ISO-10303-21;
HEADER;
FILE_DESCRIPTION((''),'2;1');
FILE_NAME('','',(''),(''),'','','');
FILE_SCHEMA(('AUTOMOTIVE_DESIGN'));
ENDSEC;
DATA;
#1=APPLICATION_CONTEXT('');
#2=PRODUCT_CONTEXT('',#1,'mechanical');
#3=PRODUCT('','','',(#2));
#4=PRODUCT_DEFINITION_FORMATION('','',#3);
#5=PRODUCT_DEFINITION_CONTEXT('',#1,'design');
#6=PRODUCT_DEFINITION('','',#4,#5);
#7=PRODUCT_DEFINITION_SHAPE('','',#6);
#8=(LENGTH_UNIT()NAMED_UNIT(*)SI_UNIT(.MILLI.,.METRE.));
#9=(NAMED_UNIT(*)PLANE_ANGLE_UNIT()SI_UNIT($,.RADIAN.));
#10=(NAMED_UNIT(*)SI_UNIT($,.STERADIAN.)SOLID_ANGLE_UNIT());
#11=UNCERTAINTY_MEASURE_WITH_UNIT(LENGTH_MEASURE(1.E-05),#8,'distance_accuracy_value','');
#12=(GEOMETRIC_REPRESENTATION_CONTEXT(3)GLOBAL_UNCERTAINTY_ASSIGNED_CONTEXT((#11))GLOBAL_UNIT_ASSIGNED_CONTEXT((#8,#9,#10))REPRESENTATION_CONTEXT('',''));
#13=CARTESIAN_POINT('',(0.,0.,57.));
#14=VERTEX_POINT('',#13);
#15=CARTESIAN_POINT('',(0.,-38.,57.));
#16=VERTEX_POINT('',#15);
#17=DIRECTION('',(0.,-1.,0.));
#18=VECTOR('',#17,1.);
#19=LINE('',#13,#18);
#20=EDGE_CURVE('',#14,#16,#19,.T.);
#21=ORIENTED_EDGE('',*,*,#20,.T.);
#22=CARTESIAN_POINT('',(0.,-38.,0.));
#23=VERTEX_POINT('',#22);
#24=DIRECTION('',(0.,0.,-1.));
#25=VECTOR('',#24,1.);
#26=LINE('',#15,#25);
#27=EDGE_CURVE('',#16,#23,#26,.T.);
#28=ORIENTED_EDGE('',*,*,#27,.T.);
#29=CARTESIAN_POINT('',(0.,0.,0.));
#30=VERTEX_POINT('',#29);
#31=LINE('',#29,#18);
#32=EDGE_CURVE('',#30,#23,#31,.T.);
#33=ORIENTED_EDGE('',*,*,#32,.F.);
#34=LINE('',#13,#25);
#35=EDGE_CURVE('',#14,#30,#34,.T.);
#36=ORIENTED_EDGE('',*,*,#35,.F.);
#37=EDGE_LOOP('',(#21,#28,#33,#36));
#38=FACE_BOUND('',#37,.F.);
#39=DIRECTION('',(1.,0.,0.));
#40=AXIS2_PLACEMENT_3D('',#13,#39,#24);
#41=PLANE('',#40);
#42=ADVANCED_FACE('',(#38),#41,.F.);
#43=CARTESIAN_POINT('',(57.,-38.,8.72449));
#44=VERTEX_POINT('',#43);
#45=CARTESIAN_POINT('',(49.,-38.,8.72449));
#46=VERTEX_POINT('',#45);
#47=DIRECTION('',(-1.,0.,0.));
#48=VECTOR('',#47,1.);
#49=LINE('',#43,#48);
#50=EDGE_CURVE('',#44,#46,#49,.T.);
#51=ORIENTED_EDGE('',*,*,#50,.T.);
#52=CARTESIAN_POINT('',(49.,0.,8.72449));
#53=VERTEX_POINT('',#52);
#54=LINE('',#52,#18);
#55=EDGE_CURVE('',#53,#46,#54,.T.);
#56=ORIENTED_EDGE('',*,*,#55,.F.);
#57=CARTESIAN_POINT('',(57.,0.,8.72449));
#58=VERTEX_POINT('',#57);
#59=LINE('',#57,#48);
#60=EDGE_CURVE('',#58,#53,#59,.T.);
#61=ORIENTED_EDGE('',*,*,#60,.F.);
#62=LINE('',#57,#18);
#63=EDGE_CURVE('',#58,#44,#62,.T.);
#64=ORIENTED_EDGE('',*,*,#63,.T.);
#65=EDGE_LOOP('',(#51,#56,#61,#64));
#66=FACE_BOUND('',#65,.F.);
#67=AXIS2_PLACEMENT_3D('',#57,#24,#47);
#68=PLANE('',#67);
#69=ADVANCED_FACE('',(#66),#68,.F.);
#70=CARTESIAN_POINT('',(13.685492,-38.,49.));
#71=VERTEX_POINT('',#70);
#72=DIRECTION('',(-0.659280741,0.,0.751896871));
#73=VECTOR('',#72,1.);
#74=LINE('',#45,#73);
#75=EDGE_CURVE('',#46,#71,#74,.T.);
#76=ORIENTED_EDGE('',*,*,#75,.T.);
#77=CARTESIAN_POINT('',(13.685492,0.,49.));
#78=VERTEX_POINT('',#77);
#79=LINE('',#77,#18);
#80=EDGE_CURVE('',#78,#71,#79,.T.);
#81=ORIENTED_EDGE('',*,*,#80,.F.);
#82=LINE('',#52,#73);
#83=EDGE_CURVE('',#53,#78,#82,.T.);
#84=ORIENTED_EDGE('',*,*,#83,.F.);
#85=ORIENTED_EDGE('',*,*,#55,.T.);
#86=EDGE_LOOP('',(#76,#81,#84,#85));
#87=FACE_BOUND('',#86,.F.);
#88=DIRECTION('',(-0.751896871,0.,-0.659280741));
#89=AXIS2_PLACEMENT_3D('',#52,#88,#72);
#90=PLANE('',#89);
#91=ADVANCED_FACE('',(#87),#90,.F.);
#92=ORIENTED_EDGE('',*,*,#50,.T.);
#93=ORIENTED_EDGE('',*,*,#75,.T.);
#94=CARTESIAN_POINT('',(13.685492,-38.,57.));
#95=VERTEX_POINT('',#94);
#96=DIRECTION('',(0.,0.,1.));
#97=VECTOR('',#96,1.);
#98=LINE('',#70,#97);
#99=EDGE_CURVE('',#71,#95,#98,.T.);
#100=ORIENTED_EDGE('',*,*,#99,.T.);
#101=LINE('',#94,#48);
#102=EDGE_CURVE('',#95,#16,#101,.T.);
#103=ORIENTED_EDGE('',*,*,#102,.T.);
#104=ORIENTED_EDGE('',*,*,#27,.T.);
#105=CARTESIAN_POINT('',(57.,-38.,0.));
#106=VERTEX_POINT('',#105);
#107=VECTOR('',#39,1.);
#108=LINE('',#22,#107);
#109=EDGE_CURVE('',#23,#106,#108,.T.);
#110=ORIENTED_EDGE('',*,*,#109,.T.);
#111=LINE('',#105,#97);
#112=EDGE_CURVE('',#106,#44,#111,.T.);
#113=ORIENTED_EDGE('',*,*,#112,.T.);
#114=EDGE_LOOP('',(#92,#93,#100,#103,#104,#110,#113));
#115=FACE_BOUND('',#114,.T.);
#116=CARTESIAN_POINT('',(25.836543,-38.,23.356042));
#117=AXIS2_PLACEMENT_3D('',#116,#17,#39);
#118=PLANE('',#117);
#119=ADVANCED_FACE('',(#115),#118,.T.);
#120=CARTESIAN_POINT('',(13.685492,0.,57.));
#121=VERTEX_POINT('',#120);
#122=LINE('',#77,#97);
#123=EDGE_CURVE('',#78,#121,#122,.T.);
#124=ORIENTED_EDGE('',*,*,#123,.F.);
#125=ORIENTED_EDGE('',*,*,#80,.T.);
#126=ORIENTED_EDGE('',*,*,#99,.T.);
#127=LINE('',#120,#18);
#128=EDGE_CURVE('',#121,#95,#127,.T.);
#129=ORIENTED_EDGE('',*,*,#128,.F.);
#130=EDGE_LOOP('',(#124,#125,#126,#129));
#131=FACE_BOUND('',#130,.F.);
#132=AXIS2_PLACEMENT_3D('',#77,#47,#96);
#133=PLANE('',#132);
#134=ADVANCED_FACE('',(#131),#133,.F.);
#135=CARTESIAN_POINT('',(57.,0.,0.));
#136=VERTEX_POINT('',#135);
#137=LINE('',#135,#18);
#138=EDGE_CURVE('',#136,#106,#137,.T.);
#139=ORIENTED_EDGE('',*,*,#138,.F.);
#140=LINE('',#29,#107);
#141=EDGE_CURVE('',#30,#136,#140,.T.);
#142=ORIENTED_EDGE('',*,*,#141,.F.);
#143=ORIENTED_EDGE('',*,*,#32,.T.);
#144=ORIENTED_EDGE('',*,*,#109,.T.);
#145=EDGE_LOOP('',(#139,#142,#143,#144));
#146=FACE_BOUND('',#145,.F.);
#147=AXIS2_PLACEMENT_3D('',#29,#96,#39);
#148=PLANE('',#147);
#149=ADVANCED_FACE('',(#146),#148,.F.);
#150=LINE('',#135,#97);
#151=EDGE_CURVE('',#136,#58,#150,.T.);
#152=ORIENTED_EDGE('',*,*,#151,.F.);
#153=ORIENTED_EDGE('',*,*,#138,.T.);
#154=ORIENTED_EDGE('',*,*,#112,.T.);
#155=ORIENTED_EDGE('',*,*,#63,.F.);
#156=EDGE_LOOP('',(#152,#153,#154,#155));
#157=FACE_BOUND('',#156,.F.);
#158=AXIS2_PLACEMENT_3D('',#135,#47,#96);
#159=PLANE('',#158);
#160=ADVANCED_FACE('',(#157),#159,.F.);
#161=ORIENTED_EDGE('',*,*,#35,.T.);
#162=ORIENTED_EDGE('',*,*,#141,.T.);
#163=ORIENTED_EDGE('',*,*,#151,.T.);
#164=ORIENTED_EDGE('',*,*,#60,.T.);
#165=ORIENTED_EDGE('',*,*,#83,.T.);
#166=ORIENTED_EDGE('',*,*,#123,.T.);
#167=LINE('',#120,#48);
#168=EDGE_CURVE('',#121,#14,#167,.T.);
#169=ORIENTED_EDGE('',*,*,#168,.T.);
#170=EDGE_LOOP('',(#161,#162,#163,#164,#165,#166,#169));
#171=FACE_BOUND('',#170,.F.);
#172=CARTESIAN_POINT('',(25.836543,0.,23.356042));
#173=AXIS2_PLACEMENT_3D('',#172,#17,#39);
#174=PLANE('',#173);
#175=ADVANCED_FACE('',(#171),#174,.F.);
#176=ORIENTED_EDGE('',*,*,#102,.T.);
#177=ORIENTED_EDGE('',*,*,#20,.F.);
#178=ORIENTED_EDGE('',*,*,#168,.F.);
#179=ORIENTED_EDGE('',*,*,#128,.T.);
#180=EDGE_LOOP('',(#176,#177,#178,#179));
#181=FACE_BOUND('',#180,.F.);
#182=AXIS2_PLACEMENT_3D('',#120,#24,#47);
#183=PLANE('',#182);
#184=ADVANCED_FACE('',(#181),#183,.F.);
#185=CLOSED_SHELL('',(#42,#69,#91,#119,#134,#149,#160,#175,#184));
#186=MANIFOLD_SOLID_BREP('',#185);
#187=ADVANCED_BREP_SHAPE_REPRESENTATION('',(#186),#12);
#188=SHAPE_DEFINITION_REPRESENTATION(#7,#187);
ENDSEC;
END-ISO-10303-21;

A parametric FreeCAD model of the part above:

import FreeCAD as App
import Part
import Sketcher

V = App.Vector

doc = App.newDocument("Part")
params = doc.addObject("Spreadsheet::Sheet", "Params")
for row, (alias, value) in enumerate([
    ("sketch1_width", "57 mm"),
    ("sketch1_width2", "8 mm"),
    ("pad1_length", "38 mm"),
], start=1):
    params.set(f"A{row}", alias)
    params.set(f"B{row}", "=" + value)
    params.setAlias(f"B{row}", alias)

body = doc.addObject("PartDesign::Body", "Body")

sketch1 = doc.addObject("Sketcher::SketchObject", "Sketch")
body.addObject(sketch1)
sketch1.AttachmentSupport = (doc.XZ_Plane, [""])
sketch1.MapMode = "FlatFace"
sketch1.addGeometry([
    Part.LineSegment(V(49, 9, 0), V(14, 49, 0)),
    Part.LineSegment(V(14, 49, 0), V(14, 57, 0)),
    Part.LineSegment(V(14, 57, 0), V(0, 57, 0)),
    Part.LineSegment(V(0, 57, 0), V(0, 0, 0)),
    Part.LineSegment(V(0, 0, 0), V(57, 0, 0)),
    Part.LineSegment(V(57, 0, 0), V(57, 9, 0)),
    Part.LineSegment(V(57, 9, 0), V(49, 9, 0)),
], False)
sketch1.addConstraint([
    Sketcher.Constraint("Coincident", 0, 2, 1, 1),
    Sketcher.Constraint("Coincident", 1, 2, 2, 1),
    Sketcher.Constraint("Coincident", 2, 2, 3, 1),
    Sketcher.Constraint("Coincident", 3, 2, 4, 1),
    Sketcher.Constraint("Coincident", 4, 2, 5, 1),
    Sketcher.Constraint("Coincident", 5, 2, 6, 1),
    Sketcher.Constraint("Coincident", 6, 2, 0, 1),
    Sketcher.Constraint("Vertical", 1),
    Sketcher.Constraint("Horizontal", 2),
    Sketcher.Constraint("Vertical", 3),
    Sketcher.Constraint("Horizontal", 4),
    Sketcher.Constraint("Vertical", 5),
    Sketcher.Constraint("Horizontal", 6),
    Sketcher.Constraint("Coincident", 3, 2, -1, 1),
    Sketcher.Constraint("Equal", 6, 1),
    Sketcher.Constraint("Equal", 4, 3),
    Sketcher.Constraint("DistanceX", 4, 1, 4, 2, 57.0),
    Sketcher.Constraint("DistanceX", 6, 2, 6, 1, 8.0),
    Sketcher.Constraint("DistanceY", 5, 1, 5, 2, 8.72449),
    Sketcher.Constraint("DistanceX", 2, 2, 2, 1, 13.685492),
])
sketch1.setExpression("Constraints[16]", "Params.sketch1_width")
sketch1.setExpression("Constraints[17]", "Params.sketch1_width2")
pad1 = doc.addObject("PartDesign::Pad", "Pad")
body.addObject(pad1)
pad1.Profile = sketch1
pad1.setExpression("Length", "Params.pad1_length")

doc.recompute()
